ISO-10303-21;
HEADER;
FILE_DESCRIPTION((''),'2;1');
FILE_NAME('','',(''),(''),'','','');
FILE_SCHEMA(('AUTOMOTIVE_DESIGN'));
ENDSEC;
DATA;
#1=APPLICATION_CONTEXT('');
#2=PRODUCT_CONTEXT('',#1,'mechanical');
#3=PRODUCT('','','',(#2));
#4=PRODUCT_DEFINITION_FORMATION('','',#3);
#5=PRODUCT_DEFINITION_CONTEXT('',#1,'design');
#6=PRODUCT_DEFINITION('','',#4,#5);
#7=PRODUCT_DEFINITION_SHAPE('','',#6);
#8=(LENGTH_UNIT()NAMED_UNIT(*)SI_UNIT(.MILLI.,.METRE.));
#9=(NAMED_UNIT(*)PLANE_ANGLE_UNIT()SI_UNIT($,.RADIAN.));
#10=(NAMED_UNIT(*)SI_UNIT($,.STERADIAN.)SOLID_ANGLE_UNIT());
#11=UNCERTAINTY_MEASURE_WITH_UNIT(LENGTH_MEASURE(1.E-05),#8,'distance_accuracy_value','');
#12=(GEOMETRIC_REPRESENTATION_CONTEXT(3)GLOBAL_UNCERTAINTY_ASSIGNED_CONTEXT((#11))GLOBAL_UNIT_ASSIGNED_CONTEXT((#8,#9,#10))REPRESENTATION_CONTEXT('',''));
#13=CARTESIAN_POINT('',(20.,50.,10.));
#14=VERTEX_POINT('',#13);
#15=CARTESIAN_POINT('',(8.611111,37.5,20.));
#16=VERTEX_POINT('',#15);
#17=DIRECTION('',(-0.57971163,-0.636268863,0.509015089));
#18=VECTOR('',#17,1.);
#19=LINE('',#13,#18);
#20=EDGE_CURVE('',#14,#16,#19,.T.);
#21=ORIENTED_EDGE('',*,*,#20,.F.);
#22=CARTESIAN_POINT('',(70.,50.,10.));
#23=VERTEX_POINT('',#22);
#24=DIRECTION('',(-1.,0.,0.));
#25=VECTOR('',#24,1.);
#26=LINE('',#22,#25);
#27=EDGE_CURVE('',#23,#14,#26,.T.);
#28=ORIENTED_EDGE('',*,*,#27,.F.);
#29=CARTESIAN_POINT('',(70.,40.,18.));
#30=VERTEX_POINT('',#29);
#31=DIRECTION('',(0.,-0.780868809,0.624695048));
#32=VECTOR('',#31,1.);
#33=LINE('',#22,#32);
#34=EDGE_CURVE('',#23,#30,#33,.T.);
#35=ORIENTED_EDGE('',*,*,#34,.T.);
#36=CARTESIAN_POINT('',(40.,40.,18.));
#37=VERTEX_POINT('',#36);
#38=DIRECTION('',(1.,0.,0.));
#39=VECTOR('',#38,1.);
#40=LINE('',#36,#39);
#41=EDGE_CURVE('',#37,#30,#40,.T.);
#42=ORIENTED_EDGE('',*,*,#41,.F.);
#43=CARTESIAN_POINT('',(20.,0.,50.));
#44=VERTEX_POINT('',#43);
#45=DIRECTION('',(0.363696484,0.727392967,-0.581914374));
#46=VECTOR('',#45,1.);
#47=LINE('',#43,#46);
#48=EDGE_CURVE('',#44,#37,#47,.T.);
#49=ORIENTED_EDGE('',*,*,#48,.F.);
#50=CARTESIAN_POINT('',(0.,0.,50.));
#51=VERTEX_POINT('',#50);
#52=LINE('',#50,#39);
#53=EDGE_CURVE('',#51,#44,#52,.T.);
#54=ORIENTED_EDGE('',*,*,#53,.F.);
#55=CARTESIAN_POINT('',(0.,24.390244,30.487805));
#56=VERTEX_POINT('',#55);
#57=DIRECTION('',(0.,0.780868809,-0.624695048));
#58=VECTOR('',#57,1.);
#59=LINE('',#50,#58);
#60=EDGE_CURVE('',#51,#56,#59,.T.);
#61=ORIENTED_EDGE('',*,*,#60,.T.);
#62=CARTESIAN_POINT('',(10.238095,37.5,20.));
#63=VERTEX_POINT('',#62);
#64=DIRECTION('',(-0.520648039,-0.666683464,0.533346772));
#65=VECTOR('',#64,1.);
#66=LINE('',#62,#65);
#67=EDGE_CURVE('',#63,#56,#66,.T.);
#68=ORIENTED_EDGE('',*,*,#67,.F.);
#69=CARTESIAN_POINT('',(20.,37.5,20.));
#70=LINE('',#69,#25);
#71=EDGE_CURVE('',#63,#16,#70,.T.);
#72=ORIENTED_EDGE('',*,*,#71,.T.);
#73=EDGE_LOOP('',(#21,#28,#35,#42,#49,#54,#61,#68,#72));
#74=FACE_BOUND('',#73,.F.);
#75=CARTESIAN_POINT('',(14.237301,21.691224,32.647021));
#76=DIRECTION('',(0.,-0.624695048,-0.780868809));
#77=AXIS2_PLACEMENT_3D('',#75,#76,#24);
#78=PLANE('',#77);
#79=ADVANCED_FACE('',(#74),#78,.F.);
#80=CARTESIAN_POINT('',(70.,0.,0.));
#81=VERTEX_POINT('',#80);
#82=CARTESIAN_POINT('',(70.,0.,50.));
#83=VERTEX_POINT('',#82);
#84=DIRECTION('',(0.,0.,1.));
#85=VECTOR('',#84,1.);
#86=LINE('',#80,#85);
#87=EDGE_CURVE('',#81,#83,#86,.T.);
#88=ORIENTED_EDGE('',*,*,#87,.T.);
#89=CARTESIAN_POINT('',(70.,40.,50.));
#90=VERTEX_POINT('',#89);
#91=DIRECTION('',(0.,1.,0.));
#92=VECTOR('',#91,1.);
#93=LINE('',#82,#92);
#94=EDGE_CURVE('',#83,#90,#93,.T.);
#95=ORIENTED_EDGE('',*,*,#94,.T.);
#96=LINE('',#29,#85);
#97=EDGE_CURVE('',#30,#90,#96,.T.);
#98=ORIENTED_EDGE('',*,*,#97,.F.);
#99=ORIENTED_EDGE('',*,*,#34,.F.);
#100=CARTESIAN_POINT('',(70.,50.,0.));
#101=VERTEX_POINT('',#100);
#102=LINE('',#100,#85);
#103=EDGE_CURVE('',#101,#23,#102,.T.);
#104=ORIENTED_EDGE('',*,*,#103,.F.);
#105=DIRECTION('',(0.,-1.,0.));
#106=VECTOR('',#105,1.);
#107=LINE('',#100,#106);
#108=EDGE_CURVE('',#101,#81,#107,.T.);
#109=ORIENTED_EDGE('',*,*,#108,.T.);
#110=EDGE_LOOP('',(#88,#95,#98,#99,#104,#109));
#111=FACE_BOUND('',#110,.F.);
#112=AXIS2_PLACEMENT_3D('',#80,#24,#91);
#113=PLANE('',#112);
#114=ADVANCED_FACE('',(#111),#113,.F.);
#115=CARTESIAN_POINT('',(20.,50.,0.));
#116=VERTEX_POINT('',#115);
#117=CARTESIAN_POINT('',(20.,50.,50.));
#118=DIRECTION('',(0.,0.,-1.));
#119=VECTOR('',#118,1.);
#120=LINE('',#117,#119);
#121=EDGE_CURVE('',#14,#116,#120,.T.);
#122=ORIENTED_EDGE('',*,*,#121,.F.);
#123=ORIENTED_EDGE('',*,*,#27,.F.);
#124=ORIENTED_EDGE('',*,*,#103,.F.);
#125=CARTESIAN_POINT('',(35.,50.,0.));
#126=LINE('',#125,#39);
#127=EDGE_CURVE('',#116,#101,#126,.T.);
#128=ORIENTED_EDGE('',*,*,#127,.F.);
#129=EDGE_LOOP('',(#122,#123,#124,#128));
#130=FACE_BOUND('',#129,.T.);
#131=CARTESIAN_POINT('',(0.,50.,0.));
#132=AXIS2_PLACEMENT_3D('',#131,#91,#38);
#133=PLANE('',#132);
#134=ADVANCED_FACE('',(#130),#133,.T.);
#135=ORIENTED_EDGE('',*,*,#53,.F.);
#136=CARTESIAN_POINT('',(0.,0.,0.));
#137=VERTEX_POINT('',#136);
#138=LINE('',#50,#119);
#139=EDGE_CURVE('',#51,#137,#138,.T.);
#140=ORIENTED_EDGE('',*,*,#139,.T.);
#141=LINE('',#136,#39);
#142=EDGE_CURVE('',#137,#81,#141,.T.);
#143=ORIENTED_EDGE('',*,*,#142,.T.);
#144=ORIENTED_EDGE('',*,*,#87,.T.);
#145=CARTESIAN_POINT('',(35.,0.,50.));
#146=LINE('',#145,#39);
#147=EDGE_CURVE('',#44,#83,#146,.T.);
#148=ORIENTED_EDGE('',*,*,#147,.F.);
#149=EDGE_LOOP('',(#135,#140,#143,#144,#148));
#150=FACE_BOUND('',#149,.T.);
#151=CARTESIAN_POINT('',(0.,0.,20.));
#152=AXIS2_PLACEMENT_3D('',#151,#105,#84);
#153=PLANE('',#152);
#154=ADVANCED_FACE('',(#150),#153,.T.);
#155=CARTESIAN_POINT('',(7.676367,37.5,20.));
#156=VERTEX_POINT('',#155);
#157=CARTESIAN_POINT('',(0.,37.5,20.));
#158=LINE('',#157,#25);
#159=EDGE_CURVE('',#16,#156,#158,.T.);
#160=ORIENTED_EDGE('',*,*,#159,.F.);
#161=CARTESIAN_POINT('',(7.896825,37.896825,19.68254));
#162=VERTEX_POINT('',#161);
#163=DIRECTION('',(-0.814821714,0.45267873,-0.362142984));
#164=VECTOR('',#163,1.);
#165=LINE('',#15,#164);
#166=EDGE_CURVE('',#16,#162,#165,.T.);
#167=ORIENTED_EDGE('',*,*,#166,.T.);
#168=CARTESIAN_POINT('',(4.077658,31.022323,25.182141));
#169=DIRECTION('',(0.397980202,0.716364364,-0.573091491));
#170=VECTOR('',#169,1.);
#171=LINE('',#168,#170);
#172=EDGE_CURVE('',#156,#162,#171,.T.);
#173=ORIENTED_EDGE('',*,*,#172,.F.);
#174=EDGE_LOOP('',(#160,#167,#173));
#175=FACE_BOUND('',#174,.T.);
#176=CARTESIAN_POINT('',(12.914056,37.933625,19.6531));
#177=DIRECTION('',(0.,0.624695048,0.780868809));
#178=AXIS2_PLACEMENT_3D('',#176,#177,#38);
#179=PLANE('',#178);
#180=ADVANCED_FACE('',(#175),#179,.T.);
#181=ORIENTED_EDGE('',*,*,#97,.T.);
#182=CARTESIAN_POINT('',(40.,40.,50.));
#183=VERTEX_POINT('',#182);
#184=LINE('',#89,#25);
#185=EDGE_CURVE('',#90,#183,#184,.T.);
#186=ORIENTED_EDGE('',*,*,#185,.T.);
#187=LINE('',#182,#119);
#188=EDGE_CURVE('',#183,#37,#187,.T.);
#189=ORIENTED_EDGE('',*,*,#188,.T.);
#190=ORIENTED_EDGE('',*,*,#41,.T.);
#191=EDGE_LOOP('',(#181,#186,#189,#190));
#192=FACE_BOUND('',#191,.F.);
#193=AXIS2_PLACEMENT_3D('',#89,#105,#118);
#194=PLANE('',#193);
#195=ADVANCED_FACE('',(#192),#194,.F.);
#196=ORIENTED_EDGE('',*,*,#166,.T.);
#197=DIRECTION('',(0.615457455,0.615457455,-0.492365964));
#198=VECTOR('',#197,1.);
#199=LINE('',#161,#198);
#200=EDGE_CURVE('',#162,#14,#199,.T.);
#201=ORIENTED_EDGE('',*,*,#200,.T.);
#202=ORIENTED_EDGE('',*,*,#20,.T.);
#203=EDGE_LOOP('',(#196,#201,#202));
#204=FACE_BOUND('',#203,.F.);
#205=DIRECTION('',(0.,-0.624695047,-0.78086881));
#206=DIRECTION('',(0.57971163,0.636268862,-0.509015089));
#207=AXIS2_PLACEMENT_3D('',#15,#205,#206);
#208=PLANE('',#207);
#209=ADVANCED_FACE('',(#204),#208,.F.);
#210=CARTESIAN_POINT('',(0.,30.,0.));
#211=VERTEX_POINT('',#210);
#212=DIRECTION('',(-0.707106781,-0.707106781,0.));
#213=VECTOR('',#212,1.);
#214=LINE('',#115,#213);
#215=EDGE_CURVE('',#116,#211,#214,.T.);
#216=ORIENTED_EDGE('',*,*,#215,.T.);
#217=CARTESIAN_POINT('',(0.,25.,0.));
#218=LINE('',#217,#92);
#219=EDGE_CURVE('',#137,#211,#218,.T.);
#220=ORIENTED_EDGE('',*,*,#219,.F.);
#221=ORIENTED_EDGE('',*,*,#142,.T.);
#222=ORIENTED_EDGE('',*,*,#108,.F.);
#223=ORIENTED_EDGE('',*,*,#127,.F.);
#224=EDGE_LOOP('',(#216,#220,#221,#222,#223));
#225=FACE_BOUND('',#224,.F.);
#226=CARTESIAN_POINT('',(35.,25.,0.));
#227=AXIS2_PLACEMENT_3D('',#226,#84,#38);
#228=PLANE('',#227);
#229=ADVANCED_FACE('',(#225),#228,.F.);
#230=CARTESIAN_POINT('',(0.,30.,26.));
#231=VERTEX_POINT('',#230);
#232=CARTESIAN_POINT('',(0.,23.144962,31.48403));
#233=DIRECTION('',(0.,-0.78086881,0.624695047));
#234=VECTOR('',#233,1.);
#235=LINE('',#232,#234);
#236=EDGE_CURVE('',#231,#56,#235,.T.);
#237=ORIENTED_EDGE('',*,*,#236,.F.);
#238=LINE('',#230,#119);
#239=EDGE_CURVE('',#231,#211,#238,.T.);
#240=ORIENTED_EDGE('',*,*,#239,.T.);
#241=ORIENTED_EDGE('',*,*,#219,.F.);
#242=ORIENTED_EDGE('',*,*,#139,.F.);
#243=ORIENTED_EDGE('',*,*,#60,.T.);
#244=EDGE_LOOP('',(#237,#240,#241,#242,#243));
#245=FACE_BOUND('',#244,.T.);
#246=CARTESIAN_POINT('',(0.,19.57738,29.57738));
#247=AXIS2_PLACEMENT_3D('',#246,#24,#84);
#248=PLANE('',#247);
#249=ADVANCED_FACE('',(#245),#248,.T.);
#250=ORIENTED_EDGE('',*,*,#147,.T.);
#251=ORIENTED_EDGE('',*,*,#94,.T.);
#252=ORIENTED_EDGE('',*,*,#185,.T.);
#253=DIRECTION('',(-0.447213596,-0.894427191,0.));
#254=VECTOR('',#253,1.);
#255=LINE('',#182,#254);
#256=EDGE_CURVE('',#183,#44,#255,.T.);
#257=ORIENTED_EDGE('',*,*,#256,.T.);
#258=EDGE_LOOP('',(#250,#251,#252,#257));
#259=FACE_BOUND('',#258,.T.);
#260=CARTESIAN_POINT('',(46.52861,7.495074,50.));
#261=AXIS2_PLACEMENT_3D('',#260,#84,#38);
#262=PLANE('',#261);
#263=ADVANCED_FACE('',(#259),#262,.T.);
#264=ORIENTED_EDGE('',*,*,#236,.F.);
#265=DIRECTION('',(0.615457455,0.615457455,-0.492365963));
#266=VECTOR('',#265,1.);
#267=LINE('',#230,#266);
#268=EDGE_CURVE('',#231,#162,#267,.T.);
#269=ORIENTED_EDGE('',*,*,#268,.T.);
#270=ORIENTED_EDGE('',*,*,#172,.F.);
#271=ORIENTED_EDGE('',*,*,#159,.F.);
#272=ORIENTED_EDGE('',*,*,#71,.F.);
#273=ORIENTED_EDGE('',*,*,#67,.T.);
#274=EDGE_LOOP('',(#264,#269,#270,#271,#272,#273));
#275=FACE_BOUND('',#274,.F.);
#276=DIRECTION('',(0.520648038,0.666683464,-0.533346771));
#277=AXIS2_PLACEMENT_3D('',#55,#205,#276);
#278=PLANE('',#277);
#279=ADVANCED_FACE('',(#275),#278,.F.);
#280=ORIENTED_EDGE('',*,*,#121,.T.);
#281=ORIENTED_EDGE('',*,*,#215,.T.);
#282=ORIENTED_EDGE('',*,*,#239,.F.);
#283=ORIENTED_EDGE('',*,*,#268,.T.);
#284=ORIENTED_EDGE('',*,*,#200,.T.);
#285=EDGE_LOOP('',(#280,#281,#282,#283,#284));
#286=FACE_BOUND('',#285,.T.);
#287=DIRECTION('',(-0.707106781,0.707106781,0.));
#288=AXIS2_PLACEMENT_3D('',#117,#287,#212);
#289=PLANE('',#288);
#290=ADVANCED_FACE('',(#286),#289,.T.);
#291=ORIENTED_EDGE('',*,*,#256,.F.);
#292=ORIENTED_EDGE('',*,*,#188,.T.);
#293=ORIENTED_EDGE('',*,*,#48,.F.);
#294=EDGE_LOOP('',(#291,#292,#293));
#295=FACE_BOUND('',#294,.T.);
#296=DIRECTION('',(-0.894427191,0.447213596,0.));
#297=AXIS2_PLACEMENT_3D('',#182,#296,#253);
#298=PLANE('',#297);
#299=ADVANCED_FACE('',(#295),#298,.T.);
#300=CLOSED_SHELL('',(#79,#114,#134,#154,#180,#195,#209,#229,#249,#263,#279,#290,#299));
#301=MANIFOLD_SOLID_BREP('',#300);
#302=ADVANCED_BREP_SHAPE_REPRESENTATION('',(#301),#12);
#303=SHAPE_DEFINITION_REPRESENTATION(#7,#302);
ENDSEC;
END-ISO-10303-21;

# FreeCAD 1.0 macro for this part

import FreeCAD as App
import Part
import Sketcher
from FreeCAD import Vector
Q = App.Units.Quantity

doc = App.newDocument("Part")
body = doc.addObject("PartDesign::Body", "Body")
body.AllowCompound = True

sketch1 = body.newObject("Sketcher::SketchObject", "Sketch")
sketch1.AttachmentSupport = (doc.getObject("XY_Plane"), [""])
sketch1.MapMode = "FlatFace"
sketch1.addGeometry([
    Part.LineSegment(Vector(0, 50, 0), Vector(0, 0, 0)),
    Part.LineSegment(Vector(0, 0, 0), Vector(70, 0, 0)),
    Part.LineSegment(Vector(70, 0, 0), Vector(70, 50, 0)),
    Part.LineSegment(Vector(70, 50, 0), Vector(0, 50, 0)),
], False)
sketch1.addConstraint([
    Sketcher.Constraint("Coincident", 0, 2, 1, 1),
    Sketcher.Constraint("Coincident", 1, 2, 2, 1),
    Sketcher.Constraint("Coincident", 2, 2, 3, 1),
    Sketcher.Constraint("Coincident", 3, 2, 0, 1),
    Sketcher.Constraint("Vertical", 0),
    Sketcher.Constraint("Horizontal", 1),
    Sketcher.Constraint("Vertical", 2),
    Sketcher.Constraint("Horizontal", 3),
    Sketcher.Constraint("Coincident", 0, 2, -1, 1),
    Sketcher.Constraint("DistanceX", 1, 1, 1, 2, 70.0),
    Sketcher.Constraint("DistanceY", 0, 2, 0, 1, 50.0),
])
pad1 = body.newObject("PartDesign::Pad", "Pad")
pad1.Profile = sketch1
pad1.Length = 50

sketch2 = body.newObject("Sketcher::SketchObject", "Sketch001")
sketch2.AttachmentSupport = (doc.getObject("XY_Plane"), [""])
sketch2.MapMode = "FlatFace"
sketch2.AttachmentOffset = App.Placement(Vector(0, 0, 50), App.Rotation())
sketch2.addGeometry([
    Part.LineSegment(Vector(0, 30, 0), Vector(20, 50, 0)),
    Part.LineSegment(Vector(20, 50, 0), Vector(0, 50, 0)),
    Part.LineSegment(Vector(0, 50, 0), Vector(0, 30, 0)),
], False)
sketch2.addConstraint([
    Sketcher.Constraint("Coincident", 0, 2, 1, 1),
    Sketcher.Constraint("Coincident", 1, 2, 2, 1),
    Sketcher.Constraint("Coincident", 2, 2, 0, 1),
    Sketcher.Constraint("Horizontal", 1),
    Sketcher.Constraint("Vertical", 2),
    Sketcher.Constraint("PointOnObject", 1, 2, -2),
    Sketcher.Constraint("Equal", 1, 2),
    Sketcher.Constraint("DistanceX", 1, 2, 1, 1, 20.0),
    Sketcher.Constraint("DistanceY", -1, 1, 0, 2, 50.0),
])
pocket1 = body.newObject("PartDesign::Pocket", "Pocket")
pocket1.Profile = sketch2
pocket1.Length = 50

sketch3 = body.newObject("Sketcher::SketchObject", "Sketch002")
sketch3.AttachmentSupport = (doc.getObject("YZ_Plane"), [""])
sketch3.MapMode = "FlatFace"
sketch3.AttachmentOffset = App.Placement(Vector(0, 0, 70), App.Rotation())
sketch3.addGeometry([
    Part.LineSegment(Vector(40, 50, 0), Vector(40, 20, 0)),
    Part.LineSegment(Vector(40, 20, 0), Vector(50, 10, 0)),
    Part.LineSegment(Vector(50, 10, 0), Vector(50, 50, 0)),
    Part.LineSegment(Vector(50, 50, 0), Vector(40, 50, 0)),
], False)
sketch3.addConstraint([
    Sketcher.Constraint("Coincident", 0, 2, 1, 1),
    Sketcher.Constraint("Coincident", 1, 2, 2, 1),
    Sketcher.Constraint("Coincident", 2, 2, 3, 1),
    Sketcher.Constraint("Coincident", 3, 2, 0, 1),
    Sketcher.Constraint("Vertical", 0),
    Sketcher.Constraint("Vertical", 2),
    Sketcher.Constraint("Horizontal", 3),
    Sketcher.Constraint("DistanceX", 3, 2, 3, 1, 10.0),
    Sketcher.Constraint("DistanceY", 0, 2, 0, 1, 30.0),
    Sketcher.Constraint("DistanceY", 2, 1, 2, 2, 40.0),
    Sketcher.Constraint("DistanceX", -1, 1, 0, 2, 40.0),
    Sketcher.Constraint("DistanceY", -1, 1, 0, 2, 20.0),
])
pocket2 = body.newObject("PartDesign::Pocket", "Pocket001")
pocket2.Profile = sketch3
pocket2.Length = 81

sketch4 = body.newObject("Sketcher::SketchObject", "Sketch003")
sketch4.AttachmentSupport = (doc.getObject("XY_Plane"), [""])
sketch4.MapMode = "FlatFace"
sketch4.AttachmentOffset = App.Placement(Vector(0, 0, 50), App.Rotation())
sketch4.addGeometry([
    Part.LineSegment(Vector(0, 0, 0), Vector(20, 0, 0)),
    Part.LineSegment(Vector(20, 0, 0), Vector(40, 40, 0)),
    Part.LineSegment(Vector(40, 40, 0), Vector(10, 40, 0)),
    Part.LineSegment(Vector(10, 40, 0), Vector(0, 30, 0)),
    Part.LineSegment(Vector(0, 30, 0), Vector(0, 0, 0)),
], False)
sketch4.addConstraint([
    Sketcher.Constraint("Coincident", 0, 2, 1, 1),
    Sketcher.Constraint("Coincident", 1, 2, 2, 1),
    Sketcher.Constraint("Coincident", 2, 2, 3, 1),
    Sketcher.Constraint("Coincident", 3, 2, 4, 1),
    Sketcher.Constraint("Coincident", 4, 2, 0, 1),
    Sketcher.Constraint("Horizontal", 0),
    Sketcher.Constraint("Horizontal", 2),
    Sketcher.Constraint("Vertical", 4),
    Sketcher.Constraint("Coincident", 4, 2, -1, 1),
    Sketcher.Constraint("Equal", 2, 4),
    Sketcher.Constraint("DistanceX", 0, 1, 0, 2, 20.0),
    Sketcher.Constraint("DistanceX", 2, 2, 2, 1, 30.0),
    Sketcher.Constraint("Angle", 3, Q("-135 deg")),
    Sketcher.Constraint("DistanceX", -1, 1, 1, 2, 40.0),
])
pocket3 = body.newObject("PartDesign::Pocket", "Pocket002")
pocket3.Profile = sketch4
pocket3.Length = 30

sketch5 = body.newObject("Sketcher::SketchObject", "Sketch004")
sketch5.Placement = App.Placement(Vector(0, 24.390244, 30.487805), App.Rotation(Vector(1, 0, 0), Vector(0, 0.780868809, -0.624695048), Vector(0, 0.624695048, 0.780868809), "ZXY"))
sketch5.addGeometry([
    Part.LineSegment(Vector(20, -31, 0), Vector(70, 33, 0)),
    Part.LineSegment(Vector(70, 33, 0), Vector(20, 33, 0)),
    Part.LineSegment(Vector(20, 33, 0), Vector(0, -31, 0)),
    Part.LineSegment(Vector(0, -31, 0), Vector(20, -31, 0)),
], False)
sketch5.addConstraint([
    Sketcher.Constraint("Coincident", 0, 2, 1, 1),
    Sketcher.Constraint("Coincident", 1, 2, 2, 1),
    Sketcher.Constraint("Coincident", 2, 2, 3, 1),
    Sketcher.Constraint("Coincident", 3, 2, 0, 1),
    Sketcher.Constraint("Horizontal", 1),
    Sketcher.Constraint("Horizontal", 3),
    Sketcher.Constraint("PointOnObject", 2, 2, -2),
    Sketcher.Constraint("Vertical", 1, 2, 3, 2),
    Sketcher.Constraint("DistanceX", 1, 2, 1, 1, 50.0),
    Sketcher.Constraint("DistanceX", 3, 1, 3, 2, 20.0),
    Sketcher.Constraint("Distance", 2, 67.082039),
    Sketcher.Constraint("DistanceY", -1, 1, 0, 2, 32.79649),
])
pad2 = body.newObject("PartDesign::Pad", "Pad001")
pad2.Profile = sketch5
pad2.Length = 73
pad2.Reversed = True

sketch6 = body.newObject("Sketcher::SketchObject", "Sketch005")
sketch6.AttachmentSupport = (doc.getObject("XZ_Plane"), [""])
sketch6.MapMode = "FlatFace"
sketch6.addGeometry([
    Part.LineSegment(Vector(0, 50, 0), Vector(0, 0, 0)),
    Part.LineSegment(Vector(0, 0, 0), Vector(70, 0, 0)),
    Part.LineSegment(Vector(70, 0, 0), Vector(70, 50, 0)),
    Part.LineSegment(Vector(70, 50, 0), Vector(0, 50, 0)),
], False)
sketch6.addConstraint([
    Sketcher.Constraint("Coincident", 0, 2, 1, 1),
    Sketcher.Constraint("Coincident", 1, 2, 2, 1),
    Sketcher.Constraint("Coincident", 2, 2, 3, 1),
    Sketcher.Constraint("Coincident", 3, 2, 0, 1),
    Sketcher.Constraint("Vertical", 0),
    Sketcher.Constraint("Horizontal", 1),
    Sketcher.Constraint("Vertical", 2),
    Sketcher.Constraint("Horizontal", 3),
    Sketcher.Constraint("Coincident", 0, 2, -1, 1),
    Sketcher.Constraint("DistanceX", 1, 1, 1, 2, 70.0),
    Sketcher.Constraint("DistanceY", 0, 2, 0, 1, 50.0),
])
pocket4 = body.newObject("PartDesign::Pocket", "Pocket003")
pocket4.Profile = sketch6
pocket4.Length = 73
pocket4.Reversed = True

sketch7 = body.newObject("Sketcher::SketchObject", "Sketch006")
sketch7.AttachmentSupport = (doc.getObject("XY_Plane"), [""])
sketch7.MapMode = "FlatFace"
sketch7.addGeometry([
    Part.LineSegment(Vector(70, 50, 0), Vector(70, 0, 0)),
    Part.LineSegment(Vector(70, 0, 0), Vector(0, 0, 0)),
    Part.LineSegment(Vector(0, 0, 0), Vector(0, 50, 0)),
    Part.LineSegment(Vector(0, 50, 0), Vector(70, 50, 0)),
], False)
sketch7.addConstraint([
    Sketcher.Constraint("Coincident", 0, 2, 1, 1),
    Sketcher.Constraint("Coincident", 1, 2, 2, 1),
    Sketcher.Constraint("Coincident", 2, 2, 3, 1),
    Sketcher.Constraint("Coincident", 3, 2, 0, 1),
    Sketcher.Constraint("Vertical", 0),
    Sketcher.Constraint("Horizontal", 1),
    Sketcher.Constraint("Vertical", 2),
    Sketcher.Constraint("Horizontal", 3),
    Sketcher.Constraint("Coincident", 1, 2, -1, 1),
    Sketcher.Constraint("DistanceX", 1, 2, 1, 1, 70.0),
    Sketcher.Constraint("DistanceY", 0, 2, 0, 1, 50.0),
])
pocket5 = body.newObject("PartDesign::Pocket", "Pocket004")
pocket5.Profile = sketch7
pocket5.Length = 73

sketch8 = body.newObject("Sketcher::SketchObject", "Sketch007")
sketch8.AttachmentSupport = (doc.getObject("XY_Plane"), [""])
sketch8.MapMode = "FlatFace"
sketch8.addGeometry([
    Part.LineSegment(Vector(10, 0, 0), Vector(0, -40, 0)),
    Part.LineSegment(Vector(0, -40, 0), Vector(20, -40, 0)),
    Part.LineSegment(Vector(20, -40, 0), Vector(44, 0, 0)),
    Part.LineSegment(Vector(44, 0, 0), Vector(10, 0, 0)),
], False)
sketch8.addConstraint([
    Sketcher.Constraint("Coincident", 0, 2, 1, 1),
    Sketcher.Constraint("Coincident", 1, 2, 2, 1),
    Sketcher.Constraint("Coincident", 2, 2, 3, 1),
    Sketcher.Constraint("Coincident", 3, 2, 0, 1),
    Sketcher.Constraint("Horizontal", 1),
    Sketcher.Constraint("Horizontal", 3),
    Sketcher.Constraint("PointOnObject", 0, 2, -2),
    Sketcher.Constraint("PointOnObject", 2, 2, -1),
    Sketcher.Constraint("DistanceX", 1, 1, 1, 2, 20.0),
    Sketcher.Constraint("DistanceY", 0, 2, -1, 1, 40.0),
    Sketcher.Constraint("Distance", 0, 41.172581),
    Sketcher.Constraint("Distance", 2, 46.849589),
])
pocket6 = body.newObject("PartDesign::Pocket", "Pocket005")
pocket6.Profile = sketch8
pocket6.Length = 73

sketch9 = body.newObject("Sketcher::SketchObject", "Sketch008")
sketch9.Placement = App.Placement(Vector(32.359063, -19.731136, 0), App.Rotation(Vector(0, 0, 1), Vector(0.520607424, 0.853796176, 0), Vector(-0.853796176, 0.520607424, 0), "ZXY"))
sketch9.addGeometry([
    Part.LineSegment(Vector(0, -24, 0), Vector(0, 23, 0)),
    Part.LineSegment(Vector(0, 23, 0), Vector(-43, 23, 0)),
    Part.LineSegment(Vector(-43, 23, 0), Vector(-11, -24, 0)),
    Part.LineSegment(Vector(-11, -24, 0), Vector(0, -24, 0)),
], False)
sketch9.addConstraint([
    Sketcher.Constraint("Coincident", 0, 2, 1, 1),
    Sketcher.Constraint("Coincident", 1, 2, 2, 1),
    Sketcher.Constraint("Coincident", 2, 2, 3, 1),
    Sketcher.Constraint("Coincident", 3, 2, 0, 1),
    Sketcher.Constraint("Vertical", 0),
    Sketcher.Constraint("Horizontal", 1),
    Sketcher.Constraint("Horizontal", 3),
    Sketcher.Constraint("PointOnObject", 0, 2, -2),
    Sketcher.Constraint("DistanceX", 1, 2, 2, 2, 32.0),
    Sketcher.Constraint("DistanceY", 0, 1, 0, 2, 46.849589),
    Sketcher.Constraint("DistanceY", 2, 2, -1, 1, 23.739699),
    Sketcher.Constraint("DistanceX", 1, 2, 1, 1, 43.485614),
])
pocket7 = body.newObject("PartDesign::Pocket", "Pocket006")
pocket7.Profile = sketch9
pocket7.Length = 73

sketch10 = body.newObject("Sketcher::SketchObject", "Sketch009")
sketch10.Placement = App.Placement(Vector(0, 24.390244, 30.487805), App.Rotation(Vector(1, 0, 0), Vector(0, 0.780868809, -0.624695048), Vector(0, 0.624695048, 0.780868809), "ZXY"))
sketch10.addGeometry([
    Part.LineSegment(Vector(0, -31, 0), Vector(20, -31, 0)),
    Part.LineSegment(Vector(20, -31, 0), Vector(70, 33, 0)),
    Part.LineSegment(Vector(70, 33, 0), Vector(20, 33, 0)),
    Part.LineSegment(Vector(20, 33, 0), Vector(0, 5, 0)),
    Part.LineSegment(Vector(0, 5, 0), Vector(0, -31, 0)),
], False)
sketch10.addConstraint([
    Sketcher.Constraint("Coincident", 0, 2, 1, 1),
    Sketcher.Constraint("Coincident", 1, 2, 2, 1),
    Sketcher.Constraint("Coincident", 2, 2, 3, 1),
    Sketcher.Constraint("Coincident", 3, 2, 4, 1),
    Sketcher.Constraint("Coincident", 4, 2, 0, 1),
    Sketcher.Constraint("Horizontal", 0),
    Sketcher.Constraint("Horizontal", 2),
    Sketcher.Constraint("Vertical", 4),
    Sketcher.Constraint("PointOnObject", 3, 2, -2),
    Sketcher.Constraint("Vertical", 0, 2, 2, 2),
    Sketcher.Constraint("DistanceX", 0, 1, 0, 2, 20.0),
    Sketcher.Constraint("DistanceX", 2, 2, 2, 1, 50.0),
    Sketcher.Constraint("Distance", 3, 34.499912),
    Sketcher.Constraint("DistanceY", 4, 2, 4, 1, 35.919965),
    Sketcher.Constraint("DistanceY", -1, 1, 1, 2, 32.79649),
])
pocket8 = body.newObject("PartDesign::Pocket", "Pocket007")
pocket8.Profile = sketch10
pocket8.Length = 73
pocket8.Reversed = True

sketch11 = body.newObject("Sketcher::SketchObject", "Sketch010")
sketch11.Placement = App.Placement(Vector(-2.213115, 1.229508, -0.983607), App.Rotation(Vector(0.316569925, -0.17587218, -0.932122556), Vector(0.485642931, 0.874157276, 0), Vector(0.814821714, -0.45267873, 0.362142984), "ZXY"))
sketch11.addGeometry([
    Part.LineSegment(Vector(-22.5, 37, 0), Vector(-11.8, 53.4, 0)),
    Part.LineSegment(Vector(-11.8, 53.4, 0), Vector(-22.5, 39.8, 0)),
    Part.LineSegment(Vector(-22.5, 39.8, 0), Vector(-22.5, 37, 0)),
], False)
sketch11.addConstraint([
    Sketcher.Constraint("Coincident", 0, 2, 1, 1),
    Sketcher.Constraint("Coincident", 1, 2, 2, 1),
    Sketcher.Constraint("Coincident", 2, 2, 0, 1),
    Sketcher.Constraint("Vertical", 2),
    Sketcher.Constraint("DistanceY", 2, 2, 0, 2, 16.457899),
    Sketcher.Constraint("Distance", 1, 17.320508),
    Sketcher.Constraint("DistanceY", 2, 2, 2, 1, 2.859897),
    Sketcher.Constraint("DistanceX", 1, 2, -1, 1, 22.511639),
    Sketcher.Constraint("DistanceY", -1, 1, 1, 2, 39.82272),
])
pocket9 = body.newObject("PartDesign::Pocket", "Pocket008")
pocket9.Profile = sketch11
pocket9.Length = 73

sketch12 = body.newObject("Sketcher::SketchObject", "Sketch011")
sketch12.Placement = App.Placement(Vector(-7.126508, 3.959171, 20.983607), App.Rotation(Vector(-0.948569177, -0.058694552, -0.311081126), Vector(0, 0.982661655, -0.185407859), Vector(0.316569925, -0.17587218, -0.932122556), "ZXY"))
sketch12.addGeometry([
    Part.LineSegment(Vector(-15.8, 33.6, 0), Vector(-18.1, 35.6, 0)),
    Part.LineSegment(Vector(-18.1, 35.6, 0), Vector(-16.6, 33.1, 0)),
    Part.LineSegment(Vector(-16.6, 33.1, 0), Vector(-15.8, 33.6, 0)),
], False)
sketch12.addConstraint([
    Sketcher.Constraint("Coincident", 0, 2, 1, 1),
    Sketcher.Constraint("Coincident", 1, 2, 2, 1),
    Sketcher.Constraint("Coincident", 2, 2, 0, 1),
    Sketcher.Constraint("Perpendicular", 1, 2),
    Sketcher.Constraint("Distance", 0, 2.991232),
    Sketcher.Constraint("DistanceY", -1, 1, 0, 2, 35.598309),
    Sketcher.Constraint("DistanceX", 2, 2, -1, 1, 15.837889),
    Sketcher.Constraint("DistanceY", -1, 1, 2, 2, 33.59046),
    Sketcher.Constraint("Distance", 1, 2.859897),
])
pocket10 = body.newObject("PartDesign::Pocket", "Pocket009")
pocket10.Profile = sketch12
pocket10.Length = 73

sketch13 = body.newObject("Sketcher::SketchObject", "Sketch012")
sketch13.Placement = App.Placement(Vector(17.950734, 32.311321, 0), App.Rotation(Vector(0.874157276, -0.485642931, 0), Vector(0, 0, -1), Vector(0.485642931, 0.874157276, 0), "ZXY"))
sketch13.addGeometry([
    Part.LineSegment(Vector(-10.68, -20, 0), Vector(-11.5, -19.68, 0)),
    Part.LineSegment(Vector(-11.5, -19.68, 0), Vector(-11.5, -20, 0)),
    Part.LineSegment(Vector(-11.5, -20, 0), Vector(-10.68, -20, 0)),
], False)
sketch13.addConstraint([
    Sketcher.Constraint("Coincident", 0, 2, 1, 1),
    Sketcher.Constraint("Coincident", 1, 2, 2, 1),
    Sketcher.Constraint("Coincident", 2, 2, 0, 1),
    Sketcher.Constraint("Vertical", 1),
    Sketcher.Constraint("Horizontal", 2),
    Sketcher.Constraint("DistanceY", 1, 2, -1, 1, 20.0),
    Sketcher.Constraint("DistanceY", 1, 2, 1, 1, 0.31746),
    Sketcher.Constraint("DistanceX", 2, 1, 2, 2, 0.817114),
    Sketcher.Constraint("DistanceX", 0, 2, -1, 1, 11.501258),
])
pocket11 = body.newObject("PartDesign::Pocket", "Pocket010")
pocket11.Profile = sketch13
pocket11.Length = 73

sketch14 = body.newObject("Sketcher::SketchObject", "Sketch013")
sketch14.AttachmentSupport = (doc.getObject("XZ_Plane"), [""])
sketch14.MapMode = "FlatFace"
sketch14.addGeometry([
    Part.LineSegment(Vector(44, -43, 0), Vector(44, 0, 0)),
    Part.LineSegment(Vector(44, 0, 0), Vector(66, -43, 0)),
    Part.LineSegment(Vector(66, -43, 0), Vector(44, -43, 0)),
], False)
sketch14.addConstraint([
    Sketcher.Constraint("Coincident", 0, 2, 1, 1),
    Sketcher.Constraint("Coincident", 1, 2, 2, 1),
    Sketcher.Constraint("Coincident", 2, 2, 0, 1),
    Sketcher.Constraint("Vertical", 0),
    Sketcher.Constraint("Horizontal", 2),
    Sketcher.Constraint("PointOnObject", 0, 2, -1),
    Sketcher.Constraint("DistanceX", 2, 2, 2, 1, 21.212495),
    Sketcher.Constraint("DistanceY", 0, 1, 0, 2, 43.485614),
    Sketcher.Constraint("DistanceX", -1, 1, 1, 2, 65.602738),
])
pocket12 = body.newObject("PartDesign::Pocket", "Pocket011")
pocket12.Profile = sketch14
pocket12.Length = 73
pocket12.Reversed = True

sketch15 = body.newObject("Sketcher::SketchObject", "Sketch014")
sketch15.AttachmentSupport = (doc.getObject("XZ_Plane"), [""])
sketch15.MapMode = "FlatFace"
sketch15.AttachmentOffset = App.Placement(Vector(0, 0, 40), App.Rotation())
sketch15.addGeometry([
    Part.LineSegment(Vector(20, 0, 0), Vector(20, -11, 0)),
    Part.LineSegment(Vector(20, -11, 0), Vector(2, -11, 0)),
    Part.LineSegment(Vector(2, -11, 0), Vector(0, 0, 0)),
    Part.LineSegment(Vector(0, 0, 0), Vector(20, 0, 0)),
], False)
sketch15.addConstraint([
    Sketcher.Constraint("Coincident", 0, 2, 1, 1),
    Sketcher.Constraint("Coincident", 1, 2, 2, 1),
    Sketcher.Constraint("Coincident", 2, 2, 3, 1),
    Sketcher.Constraint("Coincident", 3, 2, 0, 1),
    Sketcher.Constraint("Vertical", 0),
    Sketcher.Constraint("Horizontal", 1),
    Sketcher.Constraint("Horizontal", 3),
    Sketcher.Constraint("Coincident", 2, 2, -1, 1),
    Sketcher.Constraint("DistanceX", 3, 1, 3, 2, 20.0),
    Sketcher.Constraint("DistanceX", 1, 2, 1, 1, 17.758905),
    Sketcher.Constraint("DistanceY", 0, 2, 0, 1, 11.485614),
])
pocket13 = body.newObject("PartDesign::Pocket", "Pocket012")
pocket13.Profile = sketch15
pocket13.Length = 73
pocket13.Reversed = True

sketch16 = body.newObject("Sketcher::SketchObject", "Sketch015")
sketch16.Placement = App.Placement(Vector(0, 0, 0), App.Rotation(Vector(0.191510359, 0, -0.981490592), Vector(0, 1, 0), Vector(0.981490592, 0, 0.191510359), "ZXY"))
sketch16.addGeometry([
    Part.LineSegment(Vector(7, -46, 0), Vector(12, -40, 0)),
    Part.LineSegment(Vector(12, -40, 0), Vector(0, -40, 0)),
    Part.LineSegment(Vector(0, -40, 0), Vector(7, -46, 0)),
], False)
sketch16.addConstraint([
    Sketcher.Constraint("Coincident", 0, 2, 1, 1),
    Sketcher.Constraint("Coincident", 1, 2, 2, 1),
    Sketcher.Constraint("Coincident", 2, 2, 0, 1),
    Sketcher.Constraint("Horizontal", 1),
    Sketcher.Constraint("PointOnObject", 1, 2, -2),
    Sketcher.Constraint("DistanceY", 0, 2, -1, 1, 40.0),
    Sketcher.Constraint("Distance", 0, 7.228111),
    Sketcher.Constraint("DistanceX", 1, 2, 1, 1, 11.702215),
    Sketcher.Constraint("DistanceY", 2, 2, -1, 1, 45.602738),
])
pocket14 = body.newObject("PartDesign::Pocket", "Pocket013")
pocket14.Profile = sketch16
pocket14.Length = 73

sketch17 = body.newObject("Sketcher::SketchObject", "Sketch016")
sketch17.AttachmentSupport = (doc.getObject("YZ_Plane"), [""])
sketch17.MapMode = "FlatFace"
sketch17.AttachmentOffset = App.Placement(Vector(0, 0, 20), App.Rotation())
sketch17.addGeometry([
    Part.LineSegment(Vector(-46, -7, 0), Vector(-40, 0, 0)),
    Part.LineSegment(Vector(-40, 0, 0), Vector(-40, -11, 0)),
    Part.LineSegment(Vector(-40, -11, 0), Vector(-46, -7, 0)),
], False)
sketch17.addConstraint([
    Sketcher.Constraint("Coincident", 0, 2, 1, 1),
    Sketcher.Constraint("Coincident", 1, 2, 2, 1),
    Sketcher.Constraint("Coincident", 2, 2, 0, 1),
    Sketcher.Constraint("Vertical", 1),
    Sketcher.Constraint("PointOnObject", 0, 2, -1),
    Sketcher.Constraint("Perpendicular", 0, 2),
    Sketcher.Constraint("DistanceX", 0, 2, -1, 1, 40.0),
    Sketcher.Constraint("DistanceY", 1, 2, 1, 1, 11.485614),
    Sketcher.Constraint("DistanceX", 2, 2, -1, 1, 45.602738),
])
pocket15 = body.newObject("PartDesign::Pocket", "Pocket014")
pocket15.Profile = sketch17
pocket15.Length = 73
pocket15.Reversed = True

sketch18 = body.newObject("Sketcher::SketchObject", "Sketch017")
sketch18.Placement = App.Placement(Vector(0, -24.390244, 19.512195), App.Rotation(Vector(1, 0, 0), Vector(0, 0.624695048, 0.780868809), Vector(0, -0.780868809, 0.624695048), "ZXY"))
sketch18.addGeometry([
    Part.LineSegment(Vector(0, -34, 0), Vector(1.4, -34, 0)),
    Part.LineSegment(Vector(1.4, -34, 0), Vector(0, -25, 0)),
    Part.LineSegment(Vector(0, -25, 0), Vector(0, -34, 0)),
], False)
sketch18.addConstraint([
    Sketcher.Constraint("Coincident", 0, 2, 1, 1),
    Sketcher.Constraint("Coincident", 1, 2, 2, 1),
    Sketcher.Constraint("Coincident", 2, 2, 0, 1),
    Sketcher.Constraint("Horizontal", 0),
    Sketcher.Constraint("Vertical", 2),
    Sketcher.Constraint("PointOnObject", 1, 2, -2),
    Sketcher.Constraint("DistanceX", 0, 1, 0, 2, 1.366522),
    Sketcher.Constraint("DistanceY", 1, 2, -1, 1, 24.987802),
    Sketcher.Constraint("DistanceY", 2, 2, 2, 1, 8.968758),
])
pocket16 = body.newObject("PartDesign::Pocket", "Pocket015")
pocket16.Profile = sketch18
pocket16.Length = 73

sketch19 = body.newObject("Sketcher::SketchObject", "Sketch018")
sketch19.AttachmentSupport = (doc.getObject("XY_Plane"), [""])
sketch19.MapMode = "FlatFace"
sketch19.AttachmentOffset = App.Placement(Vector(0, 0, 50), App.Rotation())
sketch19.addGeometry([
    Part.LineSegment(Vector(20, 0, 0), Vector(70, 0, 0)),
    Part.LineSegment(Vector(70, 0, 0), Vector(70, 40, 0)),
    Part.LineSegment(Vector(70, 40, 0), Vector(40, 40, 0)),
    Part.LineSegment(Vector(40, 40, 0), Vector(20, 0, 0)),
], False)
sketch19.addConstraint([
    Sketcher.Constraint("Coincident", 0, 2, 1, 1),
    Sketcher.Constraint("Coincident", 1, 2, 2, 1),
    Sketcher.Constraint("Coincident", 2, 2, 3, 1),
    Sketcher.Constraint("Coincident", 3, 2, 0, 1),
    Sketcher.Constraint("Horizontal", 0),
    Sketcher.Constraint("Vertical", 1),
    Sketcher.Constraint("Horizontal", 2),
    Sketcher.Constraint("PointOnObject", 0, 2, -1),
    Sketcher.Constraint("DistanceX", 0, 1, 0, 2, 50.0),
    Sketcher.Constraint("DistanceX", 2, 2, 2, 1, 30.0),
    Sketcher.Constraint("DistanceY", 1, 1, 1, 2, 40.0),
    Sketcher.Constraint("DistanceX", -1, 1, 0, 2, 70.0),
])
pad3 = body.newObject("PartDesign::Pad", "Pad002")
pad3.Profile = sketch19
pad3.Length = 40
pad3.Reversed = True

sketch20 = body.newObject("Sketcher::SketchObject", "Sketch019")
sketch20.AttachmentSupport = (doc.getObject("YZ_Plane"), [""])
sketch20.MapMode = "FlatFace"
sketch20.addGeometry([
    Part.LineSegment(Vector(0, 20, 0), Vector(0, 50, 0)),
    Part.LineSegment(Vector(0, 50, 0), Vector(50, 20, 0)),
    Part.LineSegment(Vector(50, 20, 0), Vector(0, 20, 0)),
], False)
sketch20.addConstraint([
    Sketcher.Constraint("Coincident", 0, 2, 1, 1),
    Sketcher.Constraint("Coincident", 1, 2, 2, 1),
    Sketcher.Constraint("Coincident", 2, 2, 0, 1),
    Sketcher.Constraint("Vertical", 0),
    Sketcher.Constraint("Horizontal", 2),
    Sketcher.Constraint("PointOnObject", 0, 2, -2),
    Sketcher.Constraint("DistanceX", 2, 2, 2, 1, 50.0),
    Sketcher.Constraint("DistanceY", 0, 1, 0, 2, 30.0),
    Sketcher.Constraint("DistanceY", -1, 1, 0, 2, 50.0),
])
pad4 = body.newObject("PartDesign::Pad", "Pad003")
pad4.Profile = sketch20
pad4.Length = 20

sketch21 = body.newObject("Sketcher::SketchObject", "Sketch020")
sketch21.Placement = App.Placement(Vector(0, 24.390244, 30.487805), App.Rotation(Vector(1, 0, 0), Vector(0, 0.780868809, -0.624695048), Vector(0, 0.624695048, 0.780868809), "ZXY"))
sketch21.addGeometry([
    Part.LineSegment(Vector(20, 33, 0), Vector(0, -31, 0)),
    Part.LineSegment(Vector(0, -31, 0), Vector(20, -31, 0)),
    Part.LineSegment(Vector(20, -31, 0), Vector(20, 33, 0)),
], False)
sketch21.addConstraint([
    Sketcher.Constraint("Coincident", 0, 2, 1, 1),
    Sketcher.Constraint("Coincident", 1, 2, 2, 1),
    Sketcher.Constraint("Coincident", 2, 2, 0, 1),
    Sketcher.Constraint("Horizontal", 1),
    Sketcher.Constraint("Vertical", 2),
    Sketcher.Constraint("PointOnObject", 0, 2, -2),
    Sketcher.Constraint("DistanceX", 1, 1, 1, 2, 20.0),
    Sketcher.Constraint("Distance", 0, 67.082039),
    Sketcher.Constraint("DistanceY", -1, 1, 2, 2, 32.79649),
])
pocket17 = body.newObject("PartDesign::Pocket", "Pocket016")
pocket17.Profile = sketch21
pocket17.Length = 20
pocket17.Reversed = True

sketch22 = body.newObject("Sketcher::SketchObject", "Sketch021")
sketch22.Placement = App.Placement(Vector(0, 24.390244, 30.487805), App.Rotation(Vector(1, 0, 0), Vector(0, 0.780868809, -0.624695048), Vector(0, 0.624695048, 0.780868809), "ZXY"))
sketch22.addGeometry([
    Part.LineSegment(Vector(20, -31, 0), Vector(20, 33, 0)),
    Part.LineSegment(Vector(20, 33, 0), Vector(0, 0, 0)),
    Part.LineSegment(Vector(0, 0, 0), Vector(0, -31, 0)),
    Part.LineSegment(Vector(0, -31, 0), Vector(20, -31, 0)),
], False)
sketch22.addConstraint([
    Sketcher.Constraint("Coincident", 0, 2, 1, 1),
    Sketcher.Constraint("Coincident", 1, 2, 2, 1),
    Sketcher.Constraint("Coincident", 2, 2, 3, 1),
    Sketcher.Constraint("Coincident", 3, 2, 0, 1),
    Sketcher.Constraint("Vertical", 0),
    Sketcher.Constraint("Vertical", 2),
    Sketcher.Constraint("Horizontal", 3),
    Sketcher.Constraint("Coincident", 1, 2, -1, 1),
    Sketcher.Constraint("DistanceX", 3, 1, 3, 2, 20.0),
    Sketcher.Constraint("DistanceY", 0, 1, 0, 2, 64.031242),
    Sketcher.Constraint("DistanceY", 2, 2, 2, 1, 31.234752),
])
pocket18 = body.newObject("PartDesign::Pocket", "Pocket017")
pocket18.Profile = sketch22
pocket18.Length = 20
pocket18.Reversed = True

sketch23 = body.newObject("Sketcher::SketchObject", "Sketch022")
sketch23.Placement = App.Placement(Vector(0, 0, 0), App.Rotation(Vector(0.293651999, -0.139834285, -0.945629355), Vector(0.42993358, 0.90286052, 0), Vector(0.85377141, -0.406557814, 0.325246251), "ZXY"))
sketch23.addGeometry([
    Part.LineSegment(Vector(-35.7, 24.4, 0), Vector(-32.2, 22, 0)),
    Part.LineSegment(Vector(-32.2, 22, 0), Vector(-21.1, 38.3, 0)),
    Part.LineSegment(Vector(-21.1, 38.3, 0), Vector(-21.1, 52.1, 0)),
    Part.LineSegment(Vector(-21.1, 52.1, 0), Vector(-35.7, 24.4, 0)),
], False)
sketch23.addConstraint([
    Sketcher.Constraint("Coincident", 0, 2, 1, 1),
    Sketcher.Constraint("Coincident", 1, 2, 2, 1),
    Sketcher.Constraint("Coincident", 2, 2, 3, 1),
    Sketcher.Constraint("Coincident", 3, 2, 0, 1),
    Sketcher.Constraint("Vertical", 2),
    Sketcher.Constraint("Perpendicular", 0, 1),
    Sketcher.Constraint("Distance", 1, 19.664139),
    Sketcher.Constraint("DistanceY", 2, 1, 2, 2, 13.844885),
    Sketcher.Constraint("DistanceY", -1, 1, 0, 2, 22.020988),
    Sketcher.Constraint("DistanceY", -1, 1, 1, 2, 38.25897),
    Sketcher.Constraint("DistanceY", 3, 2, 2, 2, 27.70222),
    Sketcher.Constraint("DistanceX", 0, 2, -1, 1, 32.240756),
])
pocket19 = body.newObject("PartDesign::Pocket", "Pocket018")
pocket19.Profile = sketch23
pocket19.Length = 20

sketch24 = body.newObject("Sketcher::SketchObject", "Sketch023")
sketch24.AttachmentSupport = (doc.getObject("XY_Plane"), [""])
sketch24.MapMode = "FlatFace"
sketch24.AttachmentOffset = App.Placement(Vector(0, 0, 20), App.Rotation())
sketch24.addGeometry([
    Part.LineSegment(Vector(0, 30, 0), Vector(0, 38, 0)),
    Part.LineSegment(Vector(0, 38, 0), Vector(8, 38, 0)),
    Part.LineSegment(Vector(8, 38, 0), Vector(0, 30, 0)),
], False)
sketch24.addConstraint([
    Sketcher.Constraint("Coincident", 0, 2, 1, 1),
    Sketcher.Constraint("Coincident", 1, 2, 2, 1),
    Sketcher.Constraint("Coincident", 2, 2, 0, 1),
    Sketcher.Constraint("Vertical", 0),
    Sketcher.Constraint("Horizontal", 1),
    Sketcher.Constraint("PointOnObject", 0, 2, -2),
    Sketcher.Constraint("Equal", 1, 0),
    Sketcher.Constraint("DistanceX", 1, 1, 1, 2, 7.5),
    Sketcher.Constraint("DistanceY", -1, 1, 2, 2, 30.0),
])
pocket20 = body.newObject("PartDesign::Pocket", "Pocket019")
pocket20.Profile = sketch24
pocket20.Length = 20
pocket20.Reversed = True

sketch25 = body.newObject("Sketcher::SketchObject", "Sketch024")
sketch25.Placement = App.Placement(Vector(-2.564729, 23.387885, 35.967269), App.Rotation(Vector(-0.998217939, -0.032530406, -0.050027178), Vector(0, 0.838346045, -0.54513843), Vector(0.059673661, -0.54416696, -0.836852062), "ZXY"))
sketch25.addGeometry([
    Part.LineSegment(Vector(-3, 17, 0), Vector(-3, 30, 0)),
    Part.LineSegment(Vector(-3, 30, 0), Vector(-19, 31, 0)),
    Part.LineSegment(Vector(-19, 31, 0), Vector(-10, 16, 0)),
    Part.LineSegment(Vector(-10, 16, 0), Vector(-3, 17, 0)),
], False)
sketch25.addConstraint([
    Sketcher.Constraint("Coincident", 0, 2, 1, 1),
    Sketcher.Constraint("Coincident", 1, 2, 2, 1),
    Sketcher.Constraint("Coincident", 2, 2, 3, 1),
    Sketcher.Constraint("Coincident", 3, 2, 0, 1),
    Sketcher.Constraint("Vertical", 0),
    Sketcher.Constraint("DistanceY", 0, 1, 0, 2, 12.792502),
    Sketcher.Constraint("Distance", 2, 17.032549),
    Sketcher.Constraint("DistanceY", -1, 1, 2, 2, 16.44667),
    Sketcher.Constraint("DistanceX", 1, 2, 0, 2, 16.21938),
    Sketcher.Constraint("DistanceX", 2, 2, 0, 2, 7.394129),
    Sketcher.Constraint("DistanceY", 3, 2, 1, 2, 14.280949),
    Sketcher.Constraint("DistanceX", 0, 2, -1, 1, 2.569308),
])
pocket21 = body.newObject("PartDesign::Pocket", "Pocket020")
pocket21.Profile = sketch25
pocket21.Length = 20

sketch26 = body.newObject("Sketcher::SketchObject", "Sketch025")
sketch26.AttachmentSupport = (doc.getObject("YZ_Plane"), [""])
sketch26.MapMode = "FlatFace"
sketch26.addGeometry([
    Part.LineSegment(Vector(30, 0, 0), Vector(0, 0, 0)),
    Part.LineSegment(Vector(0, 0, 0), Vector(0, 25, 0)),
    Part.LineSegment(Vector(0, 25, 0), Vector(30, 25, 0)),
    Part.LineSegment(Vector(30, 25, 0), Vector(30, 0, 0)),
], False)
sketch26.addConstraint([
    Sketcher.Constraint("Coincident", 0, 2, 1, 1),
    Sketcher.Constraint("Coincident", 1, 2, 2, 1),
    Sketcher.Constraint("Coincident", 2, 2, 3, 1),
    Sketcher.Constraint("Coincident", 3, 2, 0, 1),
    Sketcher.Constraint("Horizontal", 0),
    Sketcher.Constraint("Vertical", 1),
    Sketcher.Constraint("Horizontal", 2),
    Sketcher.Constraint("Vertical", 3),
    Sketcher.Constraint("Coincident", 0, 2, -1, 1),
    Sketcher.Constraint("DistanceX", 0, 2, 0, 1, 30.0),
    Sketcher.Constraint("DistanceY", 1, 1, 1, 2, 25.0),
])
pad5 = body.newObject("PartDesign::Pad", "Pad004")
pad5.Profile = sketch26
pad5.Length = 20

sketch27 = body.newObject("Sketcher::SketchObject", "Sketch026")
sketch27.AttachmentSupport = (doc.getObject("XY_Plane"), [""])
sketch27.MapMode = "FlatFace"
sketch27.AttachmentOffset = App.Placement(Vector(0, 0, 20), App.Rotation())
sketch27.addGeometry([
    Part.LineSegment(Vector(0, 48.2, 0), Vector(0, 50, 0)),
    Part.LineSegment(Vector(0, 50, 0), Vector(16.2, 50, 0)),
    Part.LineSegment(Vector(16.2, 50, 0), Vector(0, 48.2, 0)),
], False)
sketch27.addConstraint([
    Sketcher.Constraint("Coincident", 0, 2, 1, 1),
    Sketcher.Constraint("Coincident", 1, 2, 2, 1),
    Sketcher.Constraint("Coincident", 2, 2, 0, 1),
    Sketcher.Constraint("Vertical", 0),
    Sketcher.Constraint("Horizontal", 1),
    Sketcher.Constraint("PointOnObject", 0, 2, -2),
    Sketcher.Constraint("DistanceY", -1, 1, 0, 2, 50.0),
    Sketcher.Constraint("DistanceX", 1, 1, 1, 2, 16.190476),
    Sketcher.Constraint("DistanceY", 0, 1, 0, 2, 1.775457),
])
pocket22 = body.newObject("PartDesign::Pocket", "Pocket021")
pocket22.Profile = sketch27
pocket22.Length = 20
pocket22.Reversed = True

sketch28 = body.newObject("Sketcher::SketchObject", "Sketch027")
sketch28.Placement = App.Placement(Vector(0, 24.390244, 30.487805), App.Rotation(Vector(1, 0, 0), Vector(0, 0.780868809, -0.624695048), Vector(0, 0.624695048, 0.780868809), "ZXY"))
sketch28.addGeometry([
    Part.LineSegment(Vector(20, 33, 0), Vector(0, 7, 0)),
    Part.LineSegment(Vector(0, 7, 0), Vector(19, 10, 0)),
    Part.LineSegment(Vector(19, 10, 0), Vector(20, 33, 0)),
], False)
sketch28.addConstraint([
    Sketcher.Constraint("Coincident", 0, 2, 1, 1),
    Sketcher.Constraint("Coincident", 1, 2, 2, 1),
    Sketcher.Constraint("Coincident", 2, 2, 0, 1),
    Sketcher.Constraint("PointOnObject", 0, 2, -2),
    Sketcher.Constraint("DistanceX", -1, 1, 2, 2, 20.0),
    Sketcher.Constraint("DistanceY", -1, 1, 2, 2, 32.79649),
    Sketcher.Constraint("Distance", 0, 32.496154),
    Sketcher.Constraint("Distance", 1, 19.538073),
    Sketcher.Constraint("Distance", 2, 23.234346),
])
pad6 = body.newObject("PartDesign::Pad", "Pad005")
pad6.Profile = sketch28
pad6.Length = 10
pad6.Reversed = True

sketch29 = body.newObject("Sketcher::SketchObject", "Sketch028")
sketch29.Placement = App.Placement(Vector(-2.564729, 23.387885, 35.967269), App.Rotation(Vector(-0.998217939, -0.032530406, -0.050027178), Vector(0, 0.838346045, -0.54513843), Vector(0.059673661, -0.54416696, -0.836852062), "ZXY"))
sketch29.addGeometry([
    Part.LineSegment(Vector(-2.6, 7.8, 0), Vector(-9.7, 16, 0)),
    Part.LineSegment(Vector(-9.7, 16, 0), Vector(-2.6, 4.2, 0)),
    Part.LineSegment(Vector(-2.6, 4.2, 0), Vector(-2.6, 7.8, 0)),
], False)
sketch29.addConstraint([
    Sketcher.Constraint("Coincident", 0, 2, 1, 1),
    Sketcher.Constraint("Coincident", 1, 2, 2, 1),
    Sketcher.Constraint("Coincident", 2, 2, 0, 1),
    Sketcher.Constraint("Vertical", 2),
    Sketcher.Constraint("DistanceY", -1, 1, 2, 2, 7.787398),
    Sketcher.Constraint("Distance", 0, 10.844791),
    Sketcher.Constraint("DistanceY", 2, 1, 2, 2, 3.546236),
    Sketcher.Constraint("DistanceX", 0, 2, -1, 1, 9.678751),
    Sketcher.Constraint("DistanceY", -1, 1, 0, 2, 15.976739),
])
pocket23 = body.newObject("PartDesign::Pocket", "Pocket022")
pocket23.Profile = sketch29
pocket23.Length = 10

sketch30 = body.newObject("Sketcher::SketchObject", "Sketch029")
sketch30.AttachmentSupport = (doc.getObject("XZ_Plane"), [""])
sketch30.MapMode = "FlatFace"
sketch30.AttachmentOffset = App.Placement(Vector(0, 0, -37.5), App.Rotation())
sketch30.addGeometry([
    Part.LineSegment(Vector(0, 27, 0), Vector(7.4, 27.5, 0)),
    Part.LineSegment(Vector(7.4, 27.5, 0), Vector(0, 27.5, 0)),
    Part.LineSegment(Vector(0, 27.5, 0), Vector(0, 27, 0)),
], False)
sketch30.addConstraint([
    Sketcher.Constraint("Coincident", 0, 2, 1, 1),
    Sketcher.Constraint("Coincident", 1, 2, 2, 1),
    Sketcher.Constraint("Coincident", 2, 2, 0, 1),
    Sketcher.Constraint("Horizontal", 1),
    Sketcher.Constraint("Vertical", 2),
    Sketcher.Constraint("PointOnObject", 1, 2, -2),
    Sketcher.Constraint("DistanceY", -1, 1, 0, 2, 27.5),
    Sketcher.Constraint("DistanceX", 1, 2, 1, 1, 7.380952),
    Sketcher.Constraint("DistanceY", 2, 2, 2, 1, 0.526316),
])
pocket24 = body.newObject("PartDesign::Pocket", "Pocket023")
pocket24.Profile = sketch30
pocket24.Length = 10

sketch31 = body.newObject("Sketcher::SketchObject", "Sketch030")
sketch31.Placement = App.Placement(Vector(0, 24.390244, 30.487805), App.Rotation(Vector(1, 0, 0), Vector(0, 0.780868809, -0.624695048), Vector(0, 0.624695048, 0.780868809), "ZXY"))
sketch31.addGeometry([
    Part.LineSegment(Vector(70, -31, 0), Vector(70, 33, 0)),
    Part.LineSegment(Vector(70, 33, 0), Vector(0, -31, 0)),
    Part.LineSegment(Vector(0, -31, 0), Vector(70, -31, 0)),
], False)
sketch31.addConstraint([
    Sketcher.Constraint("Coincident", 0, 2, 1, 1),
    Sketcher.Constraint("Coincident", 1, 2, 2, 1),
    Sketcher.Constraint("Coincident", 2, 2, 0, 1),
    Sketcher.Constraint("Vertical", 0),
    Sketcher.Constraint("Horizontal", 2),
    Sketcher.Constraint("PointOnObject", 1, 2, -2),
    Sketcher.Constraint("DistanceX", 2, 1, 2, 2, 70.0),
    Sketcher.Constraint("Distance", 1, 94.86833),
    Sketcher.Constraint("DistanceY", -1, 1, 0, 2, 32.79649),
])
pocket25 = body.newObject("PartDesign::Pocket", "Pocket024")
pocket25.Profile = sketch31
pocket25.Length = 10
pocket25.Reversed = True

sketch32 = body.newObject("Sketcher::SketchObject", "Sketch031")
sketch32.AttachmentSupport = (doc.getObject("XY_Plane"), [""])
sketch32.MapMode = "FlatFace"
sketch32.AttachmentOffset = App.Placement(Vector(0, 0, 50), App.Rotation())
sketch32.addGeometry([
    Part.LineSegment(Vector(70, 0, 0), Vector(70, 40, 0)),
    Part.LineSegment(Vector(70, 40, 0), Vector(40, 40, 0)),
    Part.LineSegment(Vector(40, 40, 0), Vector(20, 0, 0)),
    Part.LineSegment(Vector(20, 0, 0), Vector(70, 0, 0)),
], False)
sketch32.addConstraint([
    Sketcher.Constraint("Coincident", 0, 2, 1, 1),
    Sketcher.Constraint("Coincident", 1, 2, 2, 1),
    Sketcher.Constraint("Coincident", 2, 2, 3, 1),
    Sketcher.Constraint("Coincident", 3, 2, 0, 1),
    Sketcher.Constraint("Vertical", 0),
    Sketcher.Constraint("Horizontal", 1),
    Sketcher.Constraint("Horizontal", 3),
    Sketcher.Constraint("PointOnObject", 2, 2, -1),
    Sketcher.Constraint("DistanceX", 1, 2, 1, 1, 30.0),
    Sketcher.Constraint("DistanceX", 3, 1, 3, 2, 50.0),
    Sketcher.Constraint("DistanceY", 0, 1, 0, 2, 40.0),
    Sketcher.Constraint("DistanceX", -1, 1, 0, 2, 70.0),
])
pad7 = body.newObject("PartDesign::Pad", "Pad006")
pad7.Profile = sketch32
pad7.Length = 35
pad7.Reversed = True

doc.recompute()
